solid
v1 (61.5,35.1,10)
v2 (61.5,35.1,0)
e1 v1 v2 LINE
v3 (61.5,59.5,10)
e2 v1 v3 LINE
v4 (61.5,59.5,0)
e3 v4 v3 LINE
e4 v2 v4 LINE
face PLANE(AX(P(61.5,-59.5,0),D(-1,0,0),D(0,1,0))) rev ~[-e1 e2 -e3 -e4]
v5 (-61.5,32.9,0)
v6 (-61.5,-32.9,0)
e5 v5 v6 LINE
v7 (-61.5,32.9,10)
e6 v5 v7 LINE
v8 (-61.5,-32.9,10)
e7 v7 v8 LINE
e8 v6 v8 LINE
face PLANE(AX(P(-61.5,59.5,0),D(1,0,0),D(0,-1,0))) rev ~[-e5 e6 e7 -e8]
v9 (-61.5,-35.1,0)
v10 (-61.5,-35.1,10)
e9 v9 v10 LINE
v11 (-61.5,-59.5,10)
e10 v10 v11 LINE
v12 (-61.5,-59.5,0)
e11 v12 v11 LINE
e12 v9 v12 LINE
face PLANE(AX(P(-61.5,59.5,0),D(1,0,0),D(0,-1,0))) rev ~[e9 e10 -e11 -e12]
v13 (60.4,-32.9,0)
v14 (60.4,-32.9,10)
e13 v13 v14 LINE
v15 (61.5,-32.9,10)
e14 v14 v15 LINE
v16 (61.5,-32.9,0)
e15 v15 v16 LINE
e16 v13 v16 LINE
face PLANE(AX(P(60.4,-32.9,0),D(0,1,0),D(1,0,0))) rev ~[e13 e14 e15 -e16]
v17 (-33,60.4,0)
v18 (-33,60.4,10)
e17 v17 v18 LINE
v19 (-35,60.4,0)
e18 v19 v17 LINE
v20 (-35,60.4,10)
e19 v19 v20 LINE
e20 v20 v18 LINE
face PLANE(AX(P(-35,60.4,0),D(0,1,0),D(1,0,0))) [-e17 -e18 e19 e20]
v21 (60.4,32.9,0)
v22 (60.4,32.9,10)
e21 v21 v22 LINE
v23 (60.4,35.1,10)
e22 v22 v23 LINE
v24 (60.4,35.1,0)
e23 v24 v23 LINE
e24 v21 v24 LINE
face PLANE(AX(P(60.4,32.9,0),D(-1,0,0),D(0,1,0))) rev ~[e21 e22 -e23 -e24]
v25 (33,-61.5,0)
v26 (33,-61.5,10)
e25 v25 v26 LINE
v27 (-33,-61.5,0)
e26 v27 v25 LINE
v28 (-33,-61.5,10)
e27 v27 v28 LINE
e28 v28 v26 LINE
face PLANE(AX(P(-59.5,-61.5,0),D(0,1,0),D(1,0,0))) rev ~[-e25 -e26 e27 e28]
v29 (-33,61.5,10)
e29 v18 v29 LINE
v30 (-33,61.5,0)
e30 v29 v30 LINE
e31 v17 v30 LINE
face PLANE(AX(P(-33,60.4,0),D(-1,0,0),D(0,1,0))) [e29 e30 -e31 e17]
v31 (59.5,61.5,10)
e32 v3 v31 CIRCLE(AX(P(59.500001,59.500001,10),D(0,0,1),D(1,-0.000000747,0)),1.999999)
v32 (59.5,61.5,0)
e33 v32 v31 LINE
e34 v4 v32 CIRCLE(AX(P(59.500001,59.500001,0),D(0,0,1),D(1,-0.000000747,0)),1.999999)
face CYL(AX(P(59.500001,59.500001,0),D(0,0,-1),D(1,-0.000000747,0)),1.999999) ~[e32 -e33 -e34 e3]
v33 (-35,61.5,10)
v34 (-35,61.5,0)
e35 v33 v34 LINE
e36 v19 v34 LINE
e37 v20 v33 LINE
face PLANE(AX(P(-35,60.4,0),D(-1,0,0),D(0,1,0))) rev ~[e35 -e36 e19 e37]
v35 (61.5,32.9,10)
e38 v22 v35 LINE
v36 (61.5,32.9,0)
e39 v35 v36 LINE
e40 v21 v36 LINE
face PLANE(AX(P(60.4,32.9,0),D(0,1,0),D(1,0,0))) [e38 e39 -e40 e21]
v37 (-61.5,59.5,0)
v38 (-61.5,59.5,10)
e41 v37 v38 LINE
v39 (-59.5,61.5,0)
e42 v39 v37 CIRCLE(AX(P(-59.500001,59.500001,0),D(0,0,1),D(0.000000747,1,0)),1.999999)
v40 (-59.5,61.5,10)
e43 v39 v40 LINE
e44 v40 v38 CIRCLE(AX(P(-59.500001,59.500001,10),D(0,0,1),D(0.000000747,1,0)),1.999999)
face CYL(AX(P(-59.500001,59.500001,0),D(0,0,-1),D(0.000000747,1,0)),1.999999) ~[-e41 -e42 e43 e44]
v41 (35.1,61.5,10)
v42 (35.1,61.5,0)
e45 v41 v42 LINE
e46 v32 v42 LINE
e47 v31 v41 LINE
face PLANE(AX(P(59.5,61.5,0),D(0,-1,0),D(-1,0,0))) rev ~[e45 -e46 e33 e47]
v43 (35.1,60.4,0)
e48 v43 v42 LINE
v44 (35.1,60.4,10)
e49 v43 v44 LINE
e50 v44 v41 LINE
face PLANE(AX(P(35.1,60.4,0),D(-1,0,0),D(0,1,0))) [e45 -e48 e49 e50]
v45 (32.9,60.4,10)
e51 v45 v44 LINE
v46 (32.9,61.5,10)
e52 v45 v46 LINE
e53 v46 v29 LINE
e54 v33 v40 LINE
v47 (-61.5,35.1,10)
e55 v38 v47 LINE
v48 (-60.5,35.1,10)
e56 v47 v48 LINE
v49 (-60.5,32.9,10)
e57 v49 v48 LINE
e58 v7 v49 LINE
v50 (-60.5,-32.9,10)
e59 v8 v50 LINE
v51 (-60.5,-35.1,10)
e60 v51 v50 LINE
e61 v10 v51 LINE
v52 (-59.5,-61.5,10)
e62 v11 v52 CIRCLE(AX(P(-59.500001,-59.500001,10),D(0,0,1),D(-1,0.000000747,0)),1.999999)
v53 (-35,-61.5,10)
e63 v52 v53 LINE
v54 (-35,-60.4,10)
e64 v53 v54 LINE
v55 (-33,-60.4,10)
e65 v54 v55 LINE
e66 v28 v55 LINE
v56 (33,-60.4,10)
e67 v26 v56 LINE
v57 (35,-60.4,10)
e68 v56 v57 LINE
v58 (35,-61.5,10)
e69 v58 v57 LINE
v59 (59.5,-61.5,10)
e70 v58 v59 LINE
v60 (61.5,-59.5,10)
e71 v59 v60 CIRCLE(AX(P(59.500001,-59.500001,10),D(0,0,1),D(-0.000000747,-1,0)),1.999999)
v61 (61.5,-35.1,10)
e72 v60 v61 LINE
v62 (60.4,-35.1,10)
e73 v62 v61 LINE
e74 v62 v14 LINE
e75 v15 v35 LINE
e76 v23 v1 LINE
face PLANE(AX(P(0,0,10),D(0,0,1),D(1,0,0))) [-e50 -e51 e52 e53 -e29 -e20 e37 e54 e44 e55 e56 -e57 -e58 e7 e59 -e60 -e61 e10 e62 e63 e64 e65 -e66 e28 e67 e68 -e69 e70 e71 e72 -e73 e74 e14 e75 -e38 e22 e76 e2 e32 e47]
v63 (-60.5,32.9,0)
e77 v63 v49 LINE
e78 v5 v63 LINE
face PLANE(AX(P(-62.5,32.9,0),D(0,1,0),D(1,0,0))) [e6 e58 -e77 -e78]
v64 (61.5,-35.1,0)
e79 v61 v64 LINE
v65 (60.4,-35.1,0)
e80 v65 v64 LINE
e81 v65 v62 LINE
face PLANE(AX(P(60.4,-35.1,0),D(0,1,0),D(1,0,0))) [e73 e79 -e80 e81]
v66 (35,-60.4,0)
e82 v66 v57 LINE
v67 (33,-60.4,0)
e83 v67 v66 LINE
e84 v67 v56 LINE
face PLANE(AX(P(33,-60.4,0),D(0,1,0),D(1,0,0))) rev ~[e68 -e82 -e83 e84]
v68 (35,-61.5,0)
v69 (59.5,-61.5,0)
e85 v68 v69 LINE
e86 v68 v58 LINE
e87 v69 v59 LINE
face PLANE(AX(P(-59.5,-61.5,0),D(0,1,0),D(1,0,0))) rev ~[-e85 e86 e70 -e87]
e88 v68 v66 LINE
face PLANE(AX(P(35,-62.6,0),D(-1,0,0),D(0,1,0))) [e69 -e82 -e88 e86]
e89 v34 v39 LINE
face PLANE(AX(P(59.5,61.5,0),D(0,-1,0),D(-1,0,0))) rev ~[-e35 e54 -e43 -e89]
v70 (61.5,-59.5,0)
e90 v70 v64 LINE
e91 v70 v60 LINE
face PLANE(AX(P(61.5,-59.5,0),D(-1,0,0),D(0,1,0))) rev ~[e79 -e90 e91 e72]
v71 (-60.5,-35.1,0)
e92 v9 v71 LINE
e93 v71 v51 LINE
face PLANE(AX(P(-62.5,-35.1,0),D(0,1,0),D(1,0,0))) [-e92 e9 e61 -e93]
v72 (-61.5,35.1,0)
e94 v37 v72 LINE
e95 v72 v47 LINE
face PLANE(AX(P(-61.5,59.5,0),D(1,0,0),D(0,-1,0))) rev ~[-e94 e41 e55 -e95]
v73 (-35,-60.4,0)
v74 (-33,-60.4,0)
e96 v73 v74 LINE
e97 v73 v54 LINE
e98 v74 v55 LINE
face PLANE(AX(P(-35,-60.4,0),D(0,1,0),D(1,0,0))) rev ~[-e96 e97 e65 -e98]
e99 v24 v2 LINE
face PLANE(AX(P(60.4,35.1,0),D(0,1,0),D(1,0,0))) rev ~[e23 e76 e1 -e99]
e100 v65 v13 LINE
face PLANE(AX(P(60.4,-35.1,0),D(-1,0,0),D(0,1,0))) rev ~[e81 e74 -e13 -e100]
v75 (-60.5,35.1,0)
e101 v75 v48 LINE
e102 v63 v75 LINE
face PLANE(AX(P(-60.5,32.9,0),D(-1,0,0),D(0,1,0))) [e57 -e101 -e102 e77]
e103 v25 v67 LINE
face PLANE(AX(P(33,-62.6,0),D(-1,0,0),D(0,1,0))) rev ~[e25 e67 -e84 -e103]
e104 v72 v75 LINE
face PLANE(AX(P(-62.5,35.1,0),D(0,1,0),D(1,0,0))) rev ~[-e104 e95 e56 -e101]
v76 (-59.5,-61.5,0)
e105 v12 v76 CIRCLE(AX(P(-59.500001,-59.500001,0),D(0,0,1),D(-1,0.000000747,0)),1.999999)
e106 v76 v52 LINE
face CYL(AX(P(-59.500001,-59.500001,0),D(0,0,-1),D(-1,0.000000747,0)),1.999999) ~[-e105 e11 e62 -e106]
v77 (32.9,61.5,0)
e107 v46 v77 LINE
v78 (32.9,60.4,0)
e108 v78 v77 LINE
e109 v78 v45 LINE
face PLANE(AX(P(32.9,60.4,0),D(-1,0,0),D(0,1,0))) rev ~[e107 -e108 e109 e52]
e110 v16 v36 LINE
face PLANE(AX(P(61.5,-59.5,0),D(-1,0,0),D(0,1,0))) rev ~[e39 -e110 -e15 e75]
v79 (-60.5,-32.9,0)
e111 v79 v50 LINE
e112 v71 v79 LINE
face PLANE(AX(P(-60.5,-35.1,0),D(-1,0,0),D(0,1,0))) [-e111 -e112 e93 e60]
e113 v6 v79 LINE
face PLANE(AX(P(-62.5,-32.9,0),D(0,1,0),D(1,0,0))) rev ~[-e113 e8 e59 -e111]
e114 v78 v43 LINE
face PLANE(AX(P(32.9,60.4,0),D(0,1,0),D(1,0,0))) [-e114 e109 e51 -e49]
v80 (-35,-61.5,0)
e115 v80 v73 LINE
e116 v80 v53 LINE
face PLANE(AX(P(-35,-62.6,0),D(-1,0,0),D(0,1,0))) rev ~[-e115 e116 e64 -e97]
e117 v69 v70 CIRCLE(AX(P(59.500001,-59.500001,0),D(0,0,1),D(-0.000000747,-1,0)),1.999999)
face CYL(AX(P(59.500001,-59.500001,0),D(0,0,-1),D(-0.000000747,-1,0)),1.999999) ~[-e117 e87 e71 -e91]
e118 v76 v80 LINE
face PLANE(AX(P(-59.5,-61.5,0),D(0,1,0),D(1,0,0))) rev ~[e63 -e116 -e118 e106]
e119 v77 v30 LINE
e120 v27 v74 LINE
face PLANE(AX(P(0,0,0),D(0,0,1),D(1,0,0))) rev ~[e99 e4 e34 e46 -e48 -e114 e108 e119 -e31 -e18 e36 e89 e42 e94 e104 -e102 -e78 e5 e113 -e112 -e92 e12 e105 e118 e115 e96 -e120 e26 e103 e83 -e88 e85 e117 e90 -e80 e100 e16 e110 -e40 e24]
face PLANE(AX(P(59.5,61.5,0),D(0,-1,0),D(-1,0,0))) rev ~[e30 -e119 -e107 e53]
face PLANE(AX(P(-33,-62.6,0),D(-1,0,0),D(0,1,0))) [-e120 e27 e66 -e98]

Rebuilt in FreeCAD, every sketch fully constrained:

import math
import FreeCAD as App
import Part
import Sketcher
from FreeCAD import Vector
Q = App.Units.Quantity

doc = App.newDocument("Part")
body = doc.addObject("PartDesign::Body", "Body")

# Sketch on XY plane
sketch1 = body.newObject("Sketcher::SketchObject", "Sketch")
sketch1.AttachmentSupport = (doc.getObject("XY_Plane"), [""])
sketch1.MapMode = "FlatFace"
sketch1.addGeometry([
    Part.ArcOfCircle(Part.Circle(Vector(59.5, 59.5, 0), Vector(0, 0, 1), 2), math.radians(0), math.radians(90)),  # 0
    Part.LineSegment(Vector(59.5, 61.5, 0), Vector(-59.5, 61.5, 0)),  # 1
    Part.ArcOfCircle(Part.Circle(Vector(-59.5, 59.5, 0), Vector(0, 0, 1), 2), math.radians(90), math.radians(180)),  # 2
    Part.LineSegment(Vector(-61.5, 59.5, 0), Vector(-61.5, -59.5, 0)),  # 3
    Part.ArcOfCircle(Part.Circle(Vector(-59.5, -59.5, 0), Vector(0, 0, 1), 2), math.radians(180), math.radians(270)),  # 4
    Part.LineSegment(Vector(-59.5, -61.5, 0), Vector(59.5, -61.5, 0)),  # 5
    Part.ArcOfCircle(Part.Circle(Vector(59.5, -59.5, 0), Vector(0, 0, 1), 2), math.radians(-90), math.radians(0)),  # 6
    Part.LineSegment(Vector(61.5, -59.5, 0), Vector(61.5, 59.5, 0)),  # 7
], False)
sketch1.addConstraint([
    Sketcher.Constraint("Tangent", 0, 2, 1, 1),
    Sketcher.Constraint("Tangent", 1, 2, 2, 1),
    Sketcher.Constraint("Tangent", 2, 2, 3, 1),
    Sketcher.Constraint("Tangent", 3, 2, 4, 1),
    Sketcher.Constraint("Tangent", 4, 2, 5, 1),
    Sketcher.Constraint("Tangent", 5, 2, 6, 1),
    Sketcher.Constraint("Tangent", 6, 2, 7, 1),
    Sketcher.Constraint("Tangent", 7, 2, 0, 1),
    Sketcher.Constraint("Horizontal", 1),
    Sketcher.Constraint("Vertical", 3),
    Sketcher.Constraint("Horizontal", 5),
    Sketcher.Constraint("Vertical", 7),
    Sketcher.Constraint("Equal", 0, 2),
    Sketcher.Constraint("Equal", 2, 4),
    Sketcher.Constraint("Equal", 4, 6),
    Sketcher.Constraint("Symmetric", 0, 3, 4, 3, -1, 1),
    Sketcher.Constraint("Equal", 5, 3),
    Sketcher.Constraint("Radius", 0, Q("1.999999 mm")),
    Sketcher.Constraint("DistanceX", 1, 2, 1, 1, Q("119 mm")),
])
pad1 = body.newObject("PartDesign::Pad", "Pad")
pad1.Profile = sketch1
pad1.Length = 10

# Sketch on XY plane
sketch2 = body.newObject("Sketcher::SketchObject", "Sketch001")
sketch2.AttachmentSupport = (doc.getObject("XY_Plane"), [""])
sketch2.MapMode = "FlatFace"
sketch2.addGeometry([
    Part.LineSegment(Vector(-35, 62.6, 0), Vector(-35, 60.4, 0)),  # 0
    Part.LineSegment(Vector(-35, 60.4, 0), Vector(-33, 60.4, 0)),  # 1
    Part.LineSegment(Vector(-33, 60.4, 0), Vector(-33, 62.6, 0)),  # 2
    Part.LineSegment(Vector(-33, 62.6, 0), Vector(-35, 62.6, 0)),  # 3
    Part.LineSegment(Vector(32.9, 62.6, 0), Vector(32.9, 60.4, 0)),  # 4
    Part.LineSegment(Vector(32.9, 60.4, 0), Vector(35.1, 60.4, 0)),  # 5
    Part.LineSegment(Vector(35.1, 60.4, 0), Vector(35.1, 62.6, 0)),  # 6
    Part.LineSegment(Vector(35.1, 62.6, 0), Vector(32.9, 62.6, 0)),  # 7
    Part.LineSegment(Vector(60.4, 35.1, 0), Vector(60.4, 32.9, 0)),  # 8
    Part.LineSegment(Vector(60.4, 32.9, 0), Vector(62.6, 32.9, 0)),  # 9
    Part.LineSegment(Vector(62.6, 32.9, 0), Vector(62.6, 35.1, 0)),  # 10
    Part.LineSegment(Vector(62.6, 35.1, 0), Vector(60.4, 35.1, 0)),  # 11
    Part.LineSegment(Vector(60.4, -32.9, 0), Vector(60.4, -35.1, 0)),  # 12
    Part.LineSegment(Vector(60.4, -35.1, 0), Vector(62.6, -35.1, 0)),  # 13
    Part.LineSegment(Vector(62.6, -35.1, 0), Vector(62.6, -32.9, 0)),  # 14
    Part.LineSegment(Vector(62.6, -32.9, 0), Vector(60.4, -32.9, 0)),  # 15
    Part.LineSegment(Vector(33, -60.4, 0), Vector(33, -62.6, 0)),  # 16
    Part.LineSegment(Vector(33, -62.6, 0), Vector(35, -62.6, 0)),  # 17
    Part.LineSegment(Vector(35, -62.6, 0), Vector(35, -60.4, 0)),  # 18
    Part.LineSegment(Vector(35, -60.4, 0), Vector(33, -60.4, 0)),  # 19
    Part.LineSegment(Vector(-35, -60.4, 0), Vector(-35, -62.6, 0)),  # 20
    Part.LineSegment(Vector(-35, -62.6, 0), Vector(-33, -62.6, 0)),  # 21
    Part.LineSegment(Vector(-33, -62.6, 0), Vector(-33, -60.4, 0)),  # 22
    Part.LineSegment(Vector(-33, -60.4, 0), Vector(-35, -60.4, 0)),  # 23
    Part.LineSegment(Vector(-62.5, -32.9, 0), Vector(-62.5, -35.1, 0)),  # 24
    Part.LineSegment(Vector(-62.5, -35.1, 0), Vector(-60.5, -35.1, 0)),  # 25
    Part.LineSegment(Vector(-60.5, -35.1, 0), Vector(-60.5, -32.9, 0)),  # 26
    Part.LineSegment(Vector(-60.5, -32.9, 0), Vector(-62.5, -32.9, 0)),  # 27
    Part.LineSegment(Vector(-62.5, 35.1, 0), Vector(-62.5, 32.9, 0)),  # 28
    Part.LineSegment(Vector(-62.5, 32.9, 0), Vector(-60.5, 32.9, 0)),  # 29
    Part.LineSegment(Vector(-60.5, 32.9, 0), Vector(-60.5, 35.1, 0)),  # 30
    Part.LineSegment(Vector(-60.5, 35.1, 0), Vector(-62.5, 35.1, 0)),  # 31
], False)
sketch2.addConstraint([
    Sketcher.Constraint("Coincident", 0, 2, 1, 1),
    Sketcher.Constraint("Coincident", 1, 2, 2, 1),
    Sketcher.Constraint("Coincident", 2, 2, 3, 1),
    Sketcher.Constraint("Coincident", 3, 2, 0, 1),
    Sketcher.Constraint("Coincident", 4, 2, 5, 1),
    Sketcher.Constraint("Coincident", 5, 2, 6, 1),
    Sketcher.Constraint("Coincident", 6, 2, 7, 1),
    Sketcher.Constraint("Coincident", 7, 2, 4, 1),
    Sketcher.Constraint("Coincident", 8, 2, 9, 1),
    Sketcher.Constraint("Coincident", 9, 2, 10, 1),
    Sketcher.Constraint("Coincident", 10, 2, 11, 1),
    Sketcher.Constraint("Coincident", 11, 2, 8, 1),
    Sketcher.Constraint("Coincident", 12, 2, 13, 1),
    Sketcher.Constraint("Coincident", 13, 2, 14, 1),
    Sketcher.Constraint("Coincident", 14, 2, 15, 1),
    Sketcher.Constraint("Coincident", 15, 2, 12, 1),
    Sketcher.Constraint("Coincident", 16, 2, 17, 1),
    Sketcher.Constraint("Coincident", 17, 2, 18, 1),
    Sketcher.Constraint("Coincident", 18, 2, 19, 1),
    Sketcher.Constraint("Coincident", 19, 2, 16, 1),
    Sketcher.Constraint("Coincident", 20, 2, 21, 1),
    Sketcher.Constraint("Coincident", 21, 2, 22, 1),
    Sketcher.Constraint("Coincident", 22, 2, 23, 1),
    Sketcher.Constraint("Coincident", 23, 2, 20, 1),
    Sketcher.Constraint("Coincident", 24, 2, 25, 1),
    Sketcher.Constraint("Coincident", 25, 2, 26, 1),
    Sketcher.Constraint("Coincident", 26, 2, 27, 1),
    Sketcher.Constraint("Coincident", 27, 2, 24, 1),
    Sketcher.Constraint("Coincident", 28, 2, 29, 1),
    Sketcher.Constraint("Coincident", 29, 2, 30, 1),
    Sketcher.Constraint("Coincident", 30, 2, 31, 1),
    Sketcher.Constraint("Coincident", 31, 2, 28, 1),
    Sketcher.Constraint("Vertical", 0),
    Sketcher.Constraint("Horizontal", 1),
    Sketcher.Constraint("Vertical", 2),
    Sketcher.Constraint("Horizontal", 3),
    Sketcher.Constraint("Vertical", 4),
    Sketcher.Constraint("Horizontal", 5),
    Sketcher.Constraint("Vertical", 6),
    Sketcher.Constraint("Horizontal", 7),
    Sketcher.Constraint("Vertical", 8),
    Sketcher.Constraint("Horizontal", 9),
    Sketcher.Constraint("Vertical", 10),
    Sketcher.Constraint("Horizontal", 11),
    Sketcher.Constraint("Vertical", 12),
    Sketcher.Constraint("Horizontal", 13),
    Sketcher.Constraint("Vertical", 14),
    Sketcher.Constraint("Horizontal", 15),
    Sketcher.Constraint("Vertical", 16),
    Sketcher.Constraint("Horizontal", 17),
    Sketcher.Constraint("Vertical", 18),
    Sketcher.Constraint("Horizontal", 19),
    Sketcher.Constraint("Vertical", 20),
    Sketcher.Constraint("Horizontal", 21),
    Sketcher.Constraint("Vertical", 22),
    Sketcher.Constraint("Horizontal", 23),
    Sketcher.Constraint("Vertical", 24),
    Sketcher.Constraint("Horizontal", 25),
    Sketcher.Constraint("Vertical", 26),
    Sketcher.Constraint("Horizontal", 27),
    Sketcher.Constraint("Vertical", 28),
    Sketcher.Constraint("Horizontal", 29),
    Sketcher.Constraint("Vertical", 30),
    Sketcher.Constraint("Horizontal", 31),
    Sketcher.Constraint("Symmetric", 2, 2, 16, 2, -1, 1),
    Sketcher.Constraint("Symmetric", 0, 2, 18, 2, -1, 1),
    Sketcher.Constraint("Symmetric", 17, 2, 20, 2, -2),
    Sketcher.Constraint("Symmetric", 19, 2, 22, 2, -2),
    Sketcher.Constraint("Symmetric", 11, 2, 12, 2, -1),
    Sketcher.Constraint("Symmetric", 9, 2, 14, 2, -1),
    Sketcher.Constraint("Symmetric", 27, 2, 28, 2, -1),
    Sketcher.Constraint("Symmetric", 25, 2, 30, 2, -1),
    Sketcher.Constraint("Horizontal", 1, 2, 4, 2),
    Sketcher.Constraint("Horizontal", 3, 2, 6, 2),
    Sketcher.Constraint("Horizontal", 13, 2, 24, 2),
    Sketcher.Constraint("Horizontal", 15, 2, 26, 2),
    Sketcher.Constraint("Equal", 7, 9),
    Sketcher.Constraint("Equal", 23, 25),
    Sketcher.Constraint("Equal", 15, 0),
    Sketcher.Constraint("Equal", 6, 8),
    Sketcher.Constraint("DistanceX", 1, 1, 1, 2, Q("2 mm")),
    Sketcher.Constraint("DistanceX", 5, 1, 5, 2, Q("2.2 mm")),
    Sketcher.Constraint("DistanceX", 0, 2, -1, 1, Q("35 mm")),
    Sketcher.Constraint("DistanceY", 12, 2, 8, 2, Q("68 mm")),
    Sketcher.Constraint("DistanceY", -1, 1, 0, 2, Q("60.4 mm")),
    Sketcher.Constraint("DistanceX", -1, 1, 4, 2, Q("32.9 mm")),
    Sketcher.Constraint("DistanceX", -1, 1, 8, 2, Q("60.4 mm")),
    Sketcher.Constraint("DistanceX", 24, 2, -1, 1, Q("62.5 mm")),
])
pocket1 = body.newObject("PartDesign::Pocket", "Pocket")
pocket1.Profile = sketch2
pocket1.Length = 10
pocket1.Reversed = True

doc.recompute()
